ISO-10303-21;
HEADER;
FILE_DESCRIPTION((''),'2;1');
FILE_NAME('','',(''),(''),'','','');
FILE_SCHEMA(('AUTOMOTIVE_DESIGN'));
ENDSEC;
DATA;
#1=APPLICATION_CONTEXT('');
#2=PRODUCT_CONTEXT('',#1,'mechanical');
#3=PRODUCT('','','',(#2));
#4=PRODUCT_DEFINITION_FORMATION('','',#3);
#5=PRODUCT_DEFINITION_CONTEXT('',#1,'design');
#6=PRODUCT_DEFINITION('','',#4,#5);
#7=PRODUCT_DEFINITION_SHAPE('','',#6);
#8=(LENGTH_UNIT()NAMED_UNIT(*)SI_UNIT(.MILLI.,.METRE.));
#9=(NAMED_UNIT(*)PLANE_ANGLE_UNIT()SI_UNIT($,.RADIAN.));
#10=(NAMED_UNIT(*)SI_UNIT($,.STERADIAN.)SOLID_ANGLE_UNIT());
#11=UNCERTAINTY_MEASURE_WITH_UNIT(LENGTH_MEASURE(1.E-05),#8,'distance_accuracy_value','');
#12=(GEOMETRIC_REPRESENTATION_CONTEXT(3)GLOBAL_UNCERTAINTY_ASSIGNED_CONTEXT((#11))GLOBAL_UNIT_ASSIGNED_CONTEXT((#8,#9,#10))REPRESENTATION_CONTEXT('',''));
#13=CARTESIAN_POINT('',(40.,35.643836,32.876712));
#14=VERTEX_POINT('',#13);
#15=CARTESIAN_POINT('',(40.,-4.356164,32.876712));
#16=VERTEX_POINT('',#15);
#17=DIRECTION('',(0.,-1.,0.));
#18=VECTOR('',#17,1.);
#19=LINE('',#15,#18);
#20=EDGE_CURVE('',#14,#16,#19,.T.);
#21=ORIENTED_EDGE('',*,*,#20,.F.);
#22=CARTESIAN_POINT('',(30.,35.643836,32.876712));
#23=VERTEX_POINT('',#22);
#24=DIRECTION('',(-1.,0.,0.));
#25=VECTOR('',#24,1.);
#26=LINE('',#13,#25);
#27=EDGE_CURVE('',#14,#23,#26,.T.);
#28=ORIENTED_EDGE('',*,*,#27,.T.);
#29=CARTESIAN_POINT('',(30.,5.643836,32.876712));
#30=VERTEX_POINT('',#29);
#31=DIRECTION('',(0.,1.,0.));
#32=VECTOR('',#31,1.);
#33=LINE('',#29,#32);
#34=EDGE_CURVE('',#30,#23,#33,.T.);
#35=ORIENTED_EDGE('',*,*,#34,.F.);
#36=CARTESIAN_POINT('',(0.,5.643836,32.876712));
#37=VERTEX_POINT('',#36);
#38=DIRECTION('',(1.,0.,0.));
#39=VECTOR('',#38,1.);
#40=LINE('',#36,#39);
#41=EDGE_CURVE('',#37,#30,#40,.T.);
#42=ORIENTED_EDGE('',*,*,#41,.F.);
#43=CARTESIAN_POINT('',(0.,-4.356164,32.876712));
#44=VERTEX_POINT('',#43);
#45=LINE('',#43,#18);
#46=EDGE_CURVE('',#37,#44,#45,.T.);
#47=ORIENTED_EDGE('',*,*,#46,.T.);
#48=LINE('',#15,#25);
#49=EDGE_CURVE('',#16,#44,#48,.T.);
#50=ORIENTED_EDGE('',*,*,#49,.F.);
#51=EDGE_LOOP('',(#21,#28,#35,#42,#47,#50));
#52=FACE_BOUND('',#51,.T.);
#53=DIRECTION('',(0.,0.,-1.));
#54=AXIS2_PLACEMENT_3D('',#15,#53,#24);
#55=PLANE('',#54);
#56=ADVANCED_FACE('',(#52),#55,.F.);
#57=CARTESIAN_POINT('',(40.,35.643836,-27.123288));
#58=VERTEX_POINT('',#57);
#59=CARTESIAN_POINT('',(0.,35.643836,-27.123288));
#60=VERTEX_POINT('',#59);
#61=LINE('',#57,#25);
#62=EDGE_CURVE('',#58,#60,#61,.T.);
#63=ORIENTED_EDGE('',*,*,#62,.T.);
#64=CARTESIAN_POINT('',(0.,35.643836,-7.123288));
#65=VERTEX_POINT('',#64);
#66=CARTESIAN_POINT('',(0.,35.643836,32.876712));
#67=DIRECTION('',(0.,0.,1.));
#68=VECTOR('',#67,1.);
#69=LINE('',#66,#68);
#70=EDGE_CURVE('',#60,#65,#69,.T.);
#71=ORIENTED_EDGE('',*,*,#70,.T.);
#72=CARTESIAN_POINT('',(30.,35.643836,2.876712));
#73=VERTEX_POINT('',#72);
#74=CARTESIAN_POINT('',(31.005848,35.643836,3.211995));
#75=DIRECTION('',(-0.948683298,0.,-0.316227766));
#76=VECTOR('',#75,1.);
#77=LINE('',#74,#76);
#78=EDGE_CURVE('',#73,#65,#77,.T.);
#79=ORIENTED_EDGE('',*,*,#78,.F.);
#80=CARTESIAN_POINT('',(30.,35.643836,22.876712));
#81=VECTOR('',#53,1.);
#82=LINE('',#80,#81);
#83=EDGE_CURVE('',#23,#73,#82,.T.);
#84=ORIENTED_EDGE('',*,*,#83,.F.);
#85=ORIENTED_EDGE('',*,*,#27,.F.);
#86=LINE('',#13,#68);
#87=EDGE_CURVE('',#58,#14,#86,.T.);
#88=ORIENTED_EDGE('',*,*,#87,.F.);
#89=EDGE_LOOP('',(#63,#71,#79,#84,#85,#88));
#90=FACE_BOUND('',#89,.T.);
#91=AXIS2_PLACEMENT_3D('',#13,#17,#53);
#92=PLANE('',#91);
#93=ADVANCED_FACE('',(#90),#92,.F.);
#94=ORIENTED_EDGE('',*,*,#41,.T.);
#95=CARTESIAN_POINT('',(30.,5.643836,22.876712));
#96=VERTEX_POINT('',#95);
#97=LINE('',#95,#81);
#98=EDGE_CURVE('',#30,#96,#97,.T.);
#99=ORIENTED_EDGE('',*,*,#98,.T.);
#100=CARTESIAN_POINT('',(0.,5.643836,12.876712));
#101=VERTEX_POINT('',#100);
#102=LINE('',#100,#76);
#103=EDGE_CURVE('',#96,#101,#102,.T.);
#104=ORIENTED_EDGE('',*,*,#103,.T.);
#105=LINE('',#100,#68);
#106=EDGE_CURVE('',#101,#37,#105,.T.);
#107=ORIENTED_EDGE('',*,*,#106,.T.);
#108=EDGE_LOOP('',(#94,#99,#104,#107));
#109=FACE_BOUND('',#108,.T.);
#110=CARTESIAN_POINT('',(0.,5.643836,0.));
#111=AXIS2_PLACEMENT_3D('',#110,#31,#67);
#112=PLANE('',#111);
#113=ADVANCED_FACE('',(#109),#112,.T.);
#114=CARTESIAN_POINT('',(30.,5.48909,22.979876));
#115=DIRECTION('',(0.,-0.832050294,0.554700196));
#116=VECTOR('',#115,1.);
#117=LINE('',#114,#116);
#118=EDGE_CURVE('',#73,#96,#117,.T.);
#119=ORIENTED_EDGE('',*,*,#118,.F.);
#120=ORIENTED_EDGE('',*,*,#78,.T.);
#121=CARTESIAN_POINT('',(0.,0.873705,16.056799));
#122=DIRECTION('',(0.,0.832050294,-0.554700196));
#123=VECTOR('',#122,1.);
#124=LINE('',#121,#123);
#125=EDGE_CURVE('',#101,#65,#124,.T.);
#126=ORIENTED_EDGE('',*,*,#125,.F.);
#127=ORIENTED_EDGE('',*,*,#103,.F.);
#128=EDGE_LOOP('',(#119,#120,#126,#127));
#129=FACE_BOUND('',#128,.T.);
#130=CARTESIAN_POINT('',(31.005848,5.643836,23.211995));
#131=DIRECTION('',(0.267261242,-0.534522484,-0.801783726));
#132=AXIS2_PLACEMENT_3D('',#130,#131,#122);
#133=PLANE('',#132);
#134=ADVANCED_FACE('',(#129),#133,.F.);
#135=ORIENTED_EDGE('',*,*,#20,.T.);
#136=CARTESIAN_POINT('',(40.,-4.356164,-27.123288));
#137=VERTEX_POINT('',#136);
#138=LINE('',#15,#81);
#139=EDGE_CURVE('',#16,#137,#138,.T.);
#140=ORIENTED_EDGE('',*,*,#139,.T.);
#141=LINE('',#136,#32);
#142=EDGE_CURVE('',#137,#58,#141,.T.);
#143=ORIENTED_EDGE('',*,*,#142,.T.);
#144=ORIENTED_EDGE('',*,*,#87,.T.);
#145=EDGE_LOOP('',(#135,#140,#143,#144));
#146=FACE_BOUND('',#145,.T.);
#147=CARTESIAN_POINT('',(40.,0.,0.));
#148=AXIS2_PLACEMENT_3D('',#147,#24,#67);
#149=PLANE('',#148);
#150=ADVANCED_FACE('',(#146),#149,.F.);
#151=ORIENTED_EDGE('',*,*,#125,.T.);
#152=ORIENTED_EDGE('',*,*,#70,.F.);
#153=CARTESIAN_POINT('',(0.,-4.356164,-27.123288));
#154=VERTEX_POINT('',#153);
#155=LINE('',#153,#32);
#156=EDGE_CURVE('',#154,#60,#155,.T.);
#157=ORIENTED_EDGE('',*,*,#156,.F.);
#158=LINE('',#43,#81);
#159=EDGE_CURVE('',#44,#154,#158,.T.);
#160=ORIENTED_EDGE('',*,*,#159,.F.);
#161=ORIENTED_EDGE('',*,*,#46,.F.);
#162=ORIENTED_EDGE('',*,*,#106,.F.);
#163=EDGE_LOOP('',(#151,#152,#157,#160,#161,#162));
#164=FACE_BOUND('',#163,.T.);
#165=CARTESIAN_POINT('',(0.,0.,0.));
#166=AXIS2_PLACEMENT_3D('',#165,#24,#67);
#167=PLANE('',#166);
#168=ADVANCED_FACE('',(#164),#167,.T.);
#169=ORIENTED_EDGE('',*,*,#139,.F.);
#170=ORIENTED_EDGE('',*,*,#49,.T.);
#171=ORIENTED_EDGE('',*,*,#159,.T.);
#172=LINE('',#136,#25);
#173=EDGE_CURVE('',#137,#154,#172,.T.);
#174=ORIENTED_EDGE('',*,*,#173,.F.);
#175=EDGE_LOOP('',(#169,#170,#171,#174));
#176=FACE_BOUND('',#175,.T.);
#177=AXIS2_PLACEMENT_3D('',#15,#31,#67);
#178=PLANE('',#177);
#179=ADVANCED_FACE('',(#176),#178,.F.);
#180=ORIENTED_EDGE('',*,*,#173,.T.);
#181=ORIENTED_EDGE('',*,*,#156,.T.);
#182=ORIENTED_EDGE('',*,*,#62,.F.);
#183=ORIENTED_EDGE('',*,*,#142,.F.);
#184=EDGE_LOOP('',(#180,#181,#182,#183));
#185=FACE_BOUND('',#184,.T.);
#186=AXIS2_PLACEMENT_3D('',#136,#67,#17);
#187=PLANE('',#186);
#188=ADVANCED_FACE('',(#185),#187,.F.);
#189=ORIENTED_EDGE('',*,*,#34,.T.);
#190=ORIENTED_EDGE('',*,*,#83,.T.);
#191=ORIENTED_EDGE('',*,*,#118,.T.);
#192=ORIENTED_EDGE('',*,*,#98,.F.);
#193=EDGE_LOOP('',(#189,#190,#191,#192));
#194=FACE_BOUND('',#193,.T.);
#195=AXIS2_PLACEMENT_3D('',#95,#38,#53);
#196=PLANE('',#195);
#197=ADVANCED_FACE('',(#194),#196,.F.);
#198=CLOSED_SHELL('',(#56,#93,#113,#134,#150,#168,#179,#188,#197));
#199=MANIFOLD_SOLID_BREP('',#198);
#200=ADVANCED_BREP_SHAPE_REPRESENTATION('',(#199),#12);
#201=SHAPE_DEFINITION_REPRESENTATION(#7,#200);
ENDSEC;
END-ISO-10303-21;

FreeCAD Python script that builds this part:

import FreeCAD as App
import Part
import Sketcher
Q = App.Units.Quantity

doc = App.newDocument("Part")
body = doc.addObject("PartDesign::Body", "Body")

sketch1 = doc.addObject("Sketcher::SketchObject", "Sketch")
body.addObject(sketch1)
sketch1.AttachmentSupport = (doc.YZ_Plane, [""])
sketch1.MapMode = "FlatFace"
sketch1.addGeometry(Part.LineSegment(App.Vector(36, 33, 0), App.Vector(-4, 33, 0)), False)
sketch1.addGeometry(Part.LineSegment(App.Vector(-4, 33, 0), App.Vector(-4, -27, 0)), False)
sketch1.addGeometry(Part.LineSegment(App.Vector(-4, -27, 0), App.Vector(36, -27, 0)), False)
sketch1.addGeometry(Part.LineSegment(App.Vector(36, -27, 0), App.Vector(36, 33, 0)), False)
sketch1.addConstraint(Sketcher.Constraint("Coincident", 0, 2, 1, 1))
sketch1.addConstraint(Sketcher.Constraint("Coincident", 1, 2, 2, 1))
sketch1.addConstraint(Sketcher.Constraint("Coincident", 2, 2, 3, 1))
sketch1.addConstraint(Sketcher.Constraint("Coincident", 3, 2, 0, 1))
sketch1.addConstraint(Sketcher.Constraint("Horizontal", 0))
sketch1.addConstraint(Sketcher.Constraint("Vertical", 1))
sketch1.addConstraint(Sketcher.Constraint("Horizontal", 2))
sketch1.addConstraint(Sketcher.Constraint("Vertical", 3))
sketch1.addConstraint(Sketcher.Constraint("DistanceX", 0, 2, 0, 1, Q("40 mm")))
sketch1.addConstraint(Sketcher.Constraint("DistanceY", 1, 2, 1, 1, Q("60 mm")))
sketch1.addConstraint(Sketcher.Constraint("DistanceX", 0, 2, -1, 1, Q("4.356164 mm")))
sketch1.addConstraint(Sketcher.Constraint("DistanceY", -1, 1, 0, 2, Q("32.876712 mm")))
pad1 = doc.addObject("PartDesign::Pad", "Pad")
body.addObject(pad1)
pad1.Profile = sketch1
pad1.Length = 40

sketch2 = doc.addObject("Sketcher::SketchObject", "Sketch001")
body.addObject(sketch2)
sketch2.AttachmentSupport = (doc.XZ_Plane, [""])
sketch2.MapMode = "FlatFace"
sketch2.AttachmentOffset = App.Placement(App.Vector(0, 0, -35.643836), App.Rotation())
sketch2.addGeometry(Part.LineSegment(App.Vector(30, 23, 0), App.Vector(0, 13, 0)), False)
sketch2.addGeometry(Part.LineSegment(App.Vector(0, 13, 0), App.Vector(0, 33, 0)), False)
sketch2.addGeometry(Part.LineSegment(App.Vector(0, 33, 0), App.Vector(30, 33, 0)), False)
sketch2.addGeometry(Part.LineSegment(App.Vector(30, 33, 0), App.Vector(30, 23, 0)), False)
sketch2.addConstraint(Sketcher.Constraint("Coincident", 0, 2, 1, 1))
sketch2.addConstraint(Sketcher.Constraint("Coincident", 1, 2, 2, 1))
sketch2.addConstraint(Sketcher.Constraint("Coincident", 2, 2, 3, 1))
sketch2.addConstraint(Sketcher.Constraint("Coincident", 3, 2, 0, 1))
sketch2.addConstraint(Sketcher.Constraint("Vertical", 1))
sketch2.addConstraint(Sketcher.Constraint("Horizontal", 2))
sketch2.addConstraint(Sketcher.Constraint("Vertical", 3))
sketch2.addConstraint(Sketcher.Constraint("PointOnObject", 0, 2, -2))
sketch2.addConstraint(Sketcher.Constraint("DistanceX", 2, 1, 2, 2, Q("30 mm")))
sketch2.addConstraint(Sketcher.Constraint("DistanceY", 1, 1, 1, 2, Q("20 mm")))
sketch2.addConstraint(Sketcher.Constraint("DistanceY", 3, 2, 3, 1, Q("10 mm")))
sketch2.addConstraint(Sketcher.Constraint("DistanceY", -1, 1, 0, 2, Q("12.876712 mm")))
pocket1 = doc.addObject("PartDesign::Pocket", "Pocket")
body.addObject(pocket1)
pocket1.Profile = sketch2
pocket1.Length = 30
pocket1.Reversed = True

sketch3 = doc.addObject("Sketcher::SketchObject", "Sketch002")
body.addObject(sketch3)
sketch3.AttachmentSupport = (doc.YZ_Plane, [""])
sketch3.MapMode = "FlatFace"
sketch3.AttachmentOffset = App.Placement(App.Vector(0, 0, 30), App.Rotation())
sketch3.addGeometry(Part.LineSegment(App.Vector(36, 3, 0), App.Vector(6, 23, 0)), False)
sketch3.addGeometry(Part.LineSegment(App.Vector(6, 23, 0), App.Vector(6, 33, 0)), False)
sketch3.addGeometry(Part.LineSegment(App.Vector(6, 33, 0), App.Vector(36, 33, 0)), False)
sketch3.addGeometry(Part.LineSegment(App.Vector(36, 33, 0), App.Vector(36, 3, 0)), False)
sketch3.addConstraint(Sketcher.Constraint("Coincident", 0, 2, 1, 1))
sketch3.addConstraint(Sketcher.Constraint("Coincident", 1, 2, 2, 1))
sketch3.addConstraint(Sketcher.Constraint("Coincident", 2, 2, 3, 1))
sketch3.addConstraint(Sketcher.Constraint("Coincident", 3, 2, 0, 1))
sketch3.addConstraint(Sketcher.Constraint("Vertical", 1))
sketch3.addConstraint(Sketcher.Constraint("Horizontal", 2))
sketch3.addConstraint(Sketcher.Constraint("Vertical", 3))
sketch3.addConstraint(Sketcher.Constraint("Equal", 2, 3))
sketch3.addConstraint(Sketcher.Constraint("DistanceX", 2, 1, 2, 2, Q("30 mm")))
sketch3.addConstraint(Sketcher.Constraint("DistanceY", 1, 1, 1, 2, Q("10 mm")))
sketch3.addConstraint(Sketcher.Constraint("DistanceX", -1, 1, 0, 2, Q("5.643836 mm")))
sketch3.addConstraint(Sketcher.Constraint("DistanceY", -1, 1, 0, 2, Q("22.876712 mm")))

sketch4 = doc.addObject("Sketcher::SketchObject", "Sketch003")
body.addObject(sketch4)
sketch4.Placement = App.Placement(App.Vector(-3.863014, 0, 11.589041), App.Rotation(App.Vector(-0.948683298, 0, -0.316227766), App.Vector(0, 1, 0), App.Vector(0.316227766, 0, -0.948683298), "ZXY"))
sketch4.addGeometry(Part.LineSegment(App.Vector(-36, 6, 0), App.Vector(-4, 6, 0)), False)
sketch4.addConstraint(Sketcher.Constraint("Horizontal", 0))
sketch4.addConstraint(Sketcher.Constraint("DistanceX", 0, 1, 0, 2, Q("31.622777 mm")))
sketch4.addConstraint(Sketcher.Constraint("DistanceX", 0, 1, -1, 1, Q("35.694751 mm")))
sketch4.addConstraint(Sketcher.Constraint("DistanceY", -1, 1, 0, 1, Q("5.643836 mm")))
doc.recompute()

subtractivepipe = doc.addObject("PartDesign::SubtractivePipe", "SubtractivePipe")
body.addObject(subtractivepipe)
subtractivepipe.Profile = sketch3
subtractivepipe.Spine = (sketch4, ["Edge1"])

doc.recompute()
